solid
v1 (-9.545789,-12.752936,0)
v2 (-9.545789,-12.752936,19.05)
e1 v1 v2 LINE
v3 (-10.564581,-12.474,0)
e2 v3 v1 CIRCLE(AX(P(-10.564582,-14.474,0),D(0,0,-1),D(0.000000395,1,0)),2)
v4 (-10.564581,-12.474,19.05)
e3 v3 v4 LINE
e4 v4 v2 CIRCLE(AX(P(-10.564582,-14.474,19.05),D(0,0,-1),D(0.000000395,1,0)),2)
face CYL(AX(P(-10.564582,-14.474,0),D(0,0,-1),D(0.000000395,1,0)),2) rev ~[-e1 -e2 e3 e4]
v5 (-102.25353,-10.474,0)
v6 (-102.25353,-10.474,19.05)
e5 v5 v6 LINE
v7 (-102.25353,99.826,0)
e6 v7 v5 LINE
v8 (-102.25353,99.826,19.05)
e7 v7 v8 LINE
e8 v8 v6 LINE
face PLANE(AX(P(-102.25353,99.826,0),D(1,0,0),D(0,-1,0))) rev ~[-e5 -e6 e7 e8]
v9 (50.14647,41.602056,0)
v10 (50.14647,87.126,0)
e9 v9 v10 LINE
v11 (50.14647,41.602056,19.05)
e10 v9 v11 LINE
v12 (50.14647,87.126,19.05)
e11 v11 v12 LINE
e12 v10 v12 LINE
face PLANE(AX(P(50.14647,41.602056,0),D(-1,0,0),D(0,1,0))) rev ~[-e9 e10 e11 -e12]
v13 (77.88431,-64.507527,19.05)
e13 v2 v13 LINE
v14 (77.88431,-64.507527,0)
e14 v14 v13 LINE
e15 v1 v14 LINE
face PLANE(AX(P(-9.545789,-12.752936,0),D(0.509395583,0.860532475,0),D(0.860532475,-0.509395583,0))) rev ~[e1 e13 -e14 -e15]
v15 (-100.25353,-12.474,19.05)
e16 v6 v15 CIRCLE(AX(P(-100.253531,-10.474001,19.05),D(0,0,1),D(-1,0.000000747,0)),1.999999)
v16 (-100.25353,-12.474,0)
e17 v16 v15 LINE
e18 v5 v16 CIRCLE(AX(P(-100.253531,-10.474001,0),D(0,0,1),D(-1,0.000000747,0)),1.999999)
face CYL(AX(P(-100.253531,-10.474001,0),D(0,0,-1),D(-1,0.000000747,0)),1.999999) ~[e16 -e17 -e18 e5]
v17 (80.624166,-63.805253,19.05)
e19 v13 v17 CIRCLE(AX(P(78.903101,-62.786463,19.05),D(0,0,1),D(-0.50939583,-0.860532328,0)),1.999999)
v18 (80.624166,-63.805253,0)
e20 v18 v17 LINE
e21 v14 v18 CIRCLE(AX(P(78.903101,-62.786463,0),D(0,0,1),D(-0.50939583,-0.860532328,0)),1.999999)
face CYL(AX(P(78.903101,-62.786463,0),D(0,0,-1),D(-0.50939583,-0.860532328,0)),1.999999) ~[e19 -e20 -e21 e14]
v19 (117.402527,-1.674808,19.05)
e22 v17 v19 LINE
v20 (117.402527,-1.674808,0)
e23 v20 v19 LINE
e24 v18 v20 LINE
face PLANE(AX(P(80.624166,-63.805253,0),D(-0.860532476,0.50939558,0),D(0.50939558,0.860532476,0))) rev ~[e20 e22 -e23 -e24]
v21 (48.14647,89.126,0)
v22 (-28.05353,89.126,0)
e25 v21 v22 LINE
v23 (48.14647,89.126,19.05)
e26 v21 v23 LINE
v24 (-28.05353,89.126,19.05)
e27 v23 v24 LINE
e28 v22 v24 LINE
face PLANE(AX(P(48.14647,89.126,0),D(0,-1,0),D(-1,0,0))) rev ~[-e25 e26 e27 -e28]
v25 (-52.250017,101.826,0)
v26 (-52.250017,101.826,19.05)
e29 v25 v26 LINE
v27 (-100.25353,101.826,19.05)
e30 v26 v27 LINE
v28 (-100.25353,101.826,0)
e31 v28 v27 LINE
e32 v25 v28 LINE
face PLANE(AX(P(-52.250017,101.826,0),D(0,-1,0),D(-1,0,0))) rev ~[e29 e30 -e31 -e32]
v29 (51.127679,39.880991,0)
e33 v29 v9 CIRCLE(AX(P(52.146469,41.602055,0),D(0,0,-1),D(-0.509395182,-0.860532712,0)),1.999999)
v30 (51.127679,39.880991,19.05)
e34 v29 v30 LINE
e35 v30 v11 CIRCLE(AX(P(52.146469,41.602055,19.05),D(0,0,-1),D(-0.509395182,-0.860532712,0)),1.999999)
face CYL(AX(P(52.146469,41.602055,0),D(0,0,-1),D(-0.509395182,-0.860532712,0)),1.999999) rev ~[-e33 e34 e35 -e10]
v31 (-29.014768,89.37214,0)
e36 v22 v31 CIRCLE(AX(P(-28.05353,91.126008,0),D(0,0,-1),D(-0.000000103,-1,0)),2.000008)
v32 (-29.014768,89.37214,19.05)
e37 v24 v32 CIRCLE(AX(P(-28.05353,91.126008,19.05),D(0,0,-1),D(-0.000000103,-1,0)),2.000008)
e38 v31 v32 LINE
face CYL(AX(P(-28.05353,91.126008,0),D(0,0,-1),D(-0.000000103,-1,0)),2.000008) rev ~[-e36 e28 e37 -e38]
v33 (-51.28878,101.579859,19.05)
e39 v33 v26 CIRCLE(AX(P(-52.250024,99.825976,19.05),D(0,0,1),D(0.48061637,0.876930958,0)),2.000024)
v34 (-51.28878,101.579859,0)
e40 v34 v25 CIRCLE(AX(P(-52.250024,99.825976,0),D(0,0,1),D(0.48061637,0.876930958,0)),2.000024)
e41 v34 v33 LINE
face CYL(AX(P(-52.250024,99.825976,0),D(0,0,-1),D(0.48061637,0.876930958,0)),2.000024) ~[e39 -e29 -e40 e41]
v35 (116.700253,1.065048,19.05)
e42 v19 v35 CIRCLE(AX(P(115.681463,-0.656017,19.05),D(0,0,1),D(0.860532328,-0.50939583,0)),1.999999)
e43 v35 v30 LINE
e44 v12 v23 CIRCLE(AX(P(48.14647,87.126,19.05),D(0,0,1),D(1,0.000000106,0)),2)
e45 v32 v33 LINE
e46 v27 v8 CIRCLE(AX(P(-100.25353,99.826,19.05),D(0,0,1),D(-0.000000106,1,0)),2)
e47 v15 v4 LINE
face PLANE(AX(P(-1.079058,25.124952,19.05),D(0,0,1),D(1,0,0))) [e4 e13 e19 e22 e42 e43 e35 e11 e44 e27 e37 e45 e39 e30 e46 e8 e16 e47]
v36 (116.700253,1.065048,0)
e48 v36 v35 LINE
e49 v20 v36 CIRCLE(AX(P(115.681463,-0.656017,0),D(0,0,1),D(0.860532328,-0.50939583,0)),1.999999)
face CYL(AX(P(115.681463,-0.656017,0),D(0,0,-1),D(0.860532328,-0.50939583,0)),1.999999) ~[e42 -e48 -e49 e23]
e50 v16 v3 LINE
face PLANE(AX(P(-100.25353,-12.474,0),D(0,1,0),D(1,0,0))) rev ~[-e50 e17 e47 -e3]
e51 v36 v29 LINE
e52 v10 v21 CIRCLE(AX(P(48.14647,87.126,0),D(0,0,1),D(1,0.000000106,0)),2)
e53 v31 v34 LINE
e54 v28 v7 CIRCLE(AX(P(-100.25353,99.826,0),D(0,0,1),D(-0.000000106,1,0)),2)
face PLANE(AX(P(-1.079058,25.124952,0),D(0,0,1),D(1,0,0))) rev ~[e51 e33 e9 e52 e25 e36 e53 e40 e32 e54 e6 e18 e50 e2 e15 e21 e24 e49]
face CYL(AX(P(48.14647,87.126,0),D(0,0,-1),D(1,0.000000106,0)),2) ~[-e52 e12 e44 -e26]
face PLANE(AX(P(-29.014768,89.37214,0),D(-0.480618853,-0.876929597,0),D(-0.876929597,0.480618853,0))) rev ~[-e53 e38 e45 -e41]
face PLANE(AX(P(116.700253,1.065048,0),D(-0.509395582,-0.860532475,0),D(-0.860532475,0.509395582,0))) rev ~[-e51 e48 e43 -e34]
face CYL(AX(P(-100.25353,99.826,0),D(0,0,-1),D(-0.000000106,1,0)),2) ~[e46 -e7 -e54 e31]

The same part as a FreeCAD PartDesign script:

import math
import FreeCAD as App
import Part
import Sketcher
Q = App.Units.Quantity

doc = App.newDocument("Part")
body = doc.addObject("PartDesign::Body", "Body")

sketch1 = body.newObject("Sketcher::SketchObject", "Sketch")
sketch1.AttachmentSupport = (doc.getObject("XY_Plane"), [""])
sketch1.MapMode = "FlatFace"
sketch1.addGeometry(Part.ArcOfCircle(Part.Circle(App.Vector(-100.25353, 99.826, 0), App.Vector(0, 0, 1), 2), math.radians(90.000006), math.radians(179.999994)), False)
sketch1.addGeometry(Part.LineSegment(App.Vector(-102.25353, 99.826, 0), App.Vector(-102.25353, -10.474, 0)), False)
sketch1.addGeometry(Part.ArcOfCircle(Part.Circle(App.Vector(-100.253531, -10.474001, 0), App.Vector(0, 0, 1), 1.999999), math.radians(179.999957), math.radians(270.000043)), False)
sketch1.addGeometry(Part.LineSegment(App.Vector(-100.25353, -12.474, 0), App.Vector(-10.564581, -12.474, 0)), False)
sketch1.addGeometry(Part.ArcOfCircle(Part.Circle(App.Vector(-10.564582, -14.474, 0), App.Vector(0, 0, 1), 2), math.radians(59.376369), math.radians(89.999977)), False)
sketch1.addGeometry(Part.LineSegment(App.Vector(-9.545789, -12.752936, 0), App.Vector(77.88431, -64.507527, 0)), False)
sketch1.addGeometry(Part.ArcOfCircle(Part.Circle(App.Vector(78.903101, -62.786463, 0), App.Vector(0, 0, 1), 1.999999), math.radians(-120.623595), math.radians(-30.623552)), False)
sketch1.addGeometry(Part.LineSegment(App.Vector(80.624166, -63.805253, 0), App.Vector(117.402527, -1.674808, 0)), False)
sketch1.addGeometry(Part.ArcOfCircle(Part.Circle(App.Vector(115.681463, -0.656017, 0), App.Vector(0, 0, 1), 1.999999), math.radians(-30.623595), math.radians(59.376448)), False)
sketch1.addGeometry(Part.LineSegment(App.Vector(116.700253, 1.065048, 0), App.Vector(51.127679, 39.880991, 0)), False)
sketch1.addGeometry(Part.ArcOfCircle(Part.Circle(App.Vector(52.146469, 41.602055, 0), App.Vector(0, 0, 1), 1.999999), math.radians(179.99998), math.radians(239.376448)), False)
sketch1.addGeometry(Part.LineSegment(App.Vector(50.14647, 41.602056, 0), App.Vector(50.14647, 87.126, 0)), False)
sketch1.addGeometry(Part.ArcOfCircle(Part.Circle(App.Vector(48.14647, 87.126, 0), App.Vector(0, 0, 1), 2), math.radians(0.000006), math.radians(89.999994)), False)
sketch1.addGeometry(Part.LineSegment(App.Vector(48.14647, 89.126, 0), App.Vector(-28.05353, 89.126, 0)), False)
sketch1.addGeometry(Part.ArcOfCircle(Part.Circle(App.Vector(-28.05353, 91.126008, 0), App.Vector(0, 0, 1), 2.000008), math.radians(-118.725724), math.radians(-90.000006)), False)
sketch1.addGeometry(Part.LineSegment(App.Vector(-29.014768, 89.37214, 0), App.Vector(-51.28878, 101.579859, 0)), False)
sketch1.addGeometry(Part.ArcOfCircle(Part.Circle(App.Vector(-52.250024, 99.825976, 0), App.Vector(0, 0, 1), 2.000024), math.radians(61.274334), math.radians(89.999796)), False)
sketch1.addGeometry(Part.LineSegment(App.Vector(-52.250017, 101.826, 0), App.Vector(-100.25353, 101.826, 0)), False)
sketch1.addConstraint(Sketcher.Constraint("Coincident", 0, 2, 1, 1))
sketch1.addConstraint(Sketcher.Constraint("Coincident", 1, 2, 2, 1))
sketch1.addConstraint(Sketcher.Constraint("Coincident", 2, 2, 3, 1))
sketch1.addConstraint(Sketcher.Constraint("Coincident", 3, 2, 4, 2))
sketch1.addConstraint(Sketcher.Constraint("Coincident", 4, 1, 5, 1))
sketch1.addConstraint(Sketcher.Constraint("Coincident", 5, 2, 6, 1))
sketch1.addConstraint(Sketcher.Constraint("Coincident", 6, 2, 7, 1))
sketch1.addConstraint(Sketcher.Constraint("Coincident", 7, 2, 8, 1))
sketch1.addConstraint(Sketcher.Constraint("Coincident", 8, 2, 9, 1))
sketch1.addConstraint(Sketcher.Constraint("Coincident", 9, 2, 10, 2))
sketch1.addConstraint(Sketcher.Constraint("Coincident", 10, 1, 11, 1))
sketch1.addConstraint(Sketcher.Constraint("Coincident", 11, 2, 12, 1))
sketch1.addConstraint(Sketcher.Constraint("Coincident", 12, 2, 13, 1))
sketch1.addConstraint(Sketcher.Constraint("Coincident", 13, 2, 14, 2))
sketch1.addConstraint(Sketcher.Constraint("Coincident", 14, 1, 15, 1))
sketch1.addConstraint(Sketcher.Constraint("Coincident", 15, 2, 16, 1))
sketch1.addConstraint(Sketcher.Constraint("Coincident", 16, 2, 17, 1))
sketch1.addConstraint(Sketcher.Constraint("Coincident", 17, 2, 0, 1))
sketch1.addConstraint(Sketcher.Constraint("Vertical", 1))
sketch1.addConstraint(Sketcher.Constraint("Horizontal", 3))
sketch1.addConstraint(Sketcher.Constraint("Vertical", 11))
sketch1.addConstraint(Sketcher.Constraint("Horizontal", 13))
sketch1.addConstraint(Sketcher.Constraint("Horizontal", 17))
sketch1.addConstraint(Sketcher.Constraint("DistanceX", 13, 2, 13, 1, Q("3 in")))
sketch1.addConstraint(Sketcher.Constraint("Distance", 5, Q("4 in")))
sketch1.addConstraint(Sketcher.Constraint("Distance", 9, Q("3 in")))
sketch1.addConstraint(Sketcher.Constraint("Distance", 15, Q("1 in")))
sketch1.addConstraint(Sketcher.Constraint("DistanceX", 2, 3, 10, 3, Q("6 in")))
sketch1.addConstraint(Sketcher.Constraint("DistanceX", 0, 3, 10, 3, Q("5.9999999 in")))
sketch1.addConstraint(Sketcher.Constraint("DistanceY", 4, 3, 12, 3, Q("4 in")))
sketch1.addConstraint(Sketcher.Constraint("DistanceX", 14, 3, 12, 3, Q("3 in")))
sketch1.addConstraint(Sketcher.Constraint("DistanceY", 4, 3, 0, 3, Q("4.5 in")))
sketch1.addConstraint(Sketcher.Constraint("DistanceY", 4, 3, 0, 2, Q("4.5 in")))
sketch1.addConstraint(Sketcher.Constraint("DistanceY", 13, 2, 16, 2, Q("0.5 in")))
sketch1.addConstraint(Sketcher.Constraint("Radius", 0, Q("2 mm")))
sketch1.addConstraint(Sketcher.Constraint("Radius", 4, Q("2 mm")))
sketch1.addConstraint(Sketcher.Constraint("Radius", 6, Q("1.999999 mm")))
sketch1.addConstraint(Sketcher.Constraint("Radius", 8, Q("1.999999 mm")))
sketch1.addConstraint(Sketcher.Constraint("Radius", 10, Q("1.999999 mm")))
sketch1.addConstraint(Sketcher.Constraint("DistanceY", 1, 2, 1, 1, Q("110.3 mm")))
sketch1.addConstraint(Sketcher.Constraint("Radius", 14, Q("2.000008 mm")))
sketch1.addConstraint(Sketcher.Constraint("Radius", 16, Q("2.000024 mm")))
sketch1.addConstraint(Sketcher.Constraint("Distance", 7, Q("72.2 mm")))
sketch1.addConstraint(Sketcher.Constraint("DistanceX", 3, 1, 3, 2, Q("89.688949 mm")))
sketch1.addConstraint(Sketcher.Constraint("DistanceY", -1, 1, 0, 3, Q("99.826 mm")))
sketch1.addConstraint(Sketcher.Constraint("DistanceX", -1, 1, 6, 3, Q("78.903101 mm")))
sketch1.addConstraint(Sketcher.Constraint("DistanceY", -1, 1, 11, 2, Q("87.126 mm")))
sketch1.addConstraint(Sketcher.Constraint("DistanceX", 1, 2, 2, 2, Q("2 mm")))
sketch1.addConstraint(Sketcher.Constraint("DistanceX", 4, 1, 5, 2, Q("87.430099 mm")))
sketch1.addConstraint(Sketcher.Constraint("DistanceY", 6, 2, 8, 2, Q("64.870301 mm")))
sketch1.addConstraint(Sketcher.Constraint("DistanceY", 7, 2, 9, 2, Q("41.555799 mm")))
sketch1.addConstraint(Sketcher.Constraint("DistanceX", 12, 2, 11, 2, Q("2 mm")))
sketch1.addConstraint(Sketcher.Constraint("DistanceX", 0, 2, 17, 2, Q("2 mm")))
sketch1.addConstraint(Sketcher.Constraint("DistanceX", 17, 2, 17, 1, Q("48.003513 mm")))
sketch1.addConstraint(Sketcher.Constraint("DistanceY", 11, 1, 11, 2, Q("45.523944 mm")))
sketch1.addConstraint(Sketcher.Constraint("DistanceX", 0, 3, -1, 1, Q("100.25353 mm")))
sketch1.addConstraint(Sketcher.Constraint("DistanceX", 4, 3, -1, 1, Q("10.564582 mm")))
sketch1.addConstraint(Sketcher.Constraint("DistanceX", 4, 1, -1, 1, Q("9.545789 mm")))
sketch1.addConstraint(Sketcher.Constraint("DistanceY", 7, 2, -1, 1, Q("1.674808 mm")))
sketch1.addConstraint(Sketcher.Constraint("DistanceY", -1, 1, 8, 2, Q("1.065048 mm")))
sketch1.addConstraint(Sketcher.Constraint("DistanceX", -1, 1, 9, 2, Q("51.127679 mm")))
sketch1.addConstraint(Sketcher.Constraint("DistanceX", 14, 1, -1, 1, Q("29.014768 mm")))
sketch1.addConstraint(Sketcher.Constraint("DistanceX", 15, 2, -1, 1, Q("51.28878 mm")))
pad1 = body.newObject("PartDesign::Pad", "Pad")
pad1.Profile = sketch1
pad1.Length = Q("0.75 in")

doc.recompute()
